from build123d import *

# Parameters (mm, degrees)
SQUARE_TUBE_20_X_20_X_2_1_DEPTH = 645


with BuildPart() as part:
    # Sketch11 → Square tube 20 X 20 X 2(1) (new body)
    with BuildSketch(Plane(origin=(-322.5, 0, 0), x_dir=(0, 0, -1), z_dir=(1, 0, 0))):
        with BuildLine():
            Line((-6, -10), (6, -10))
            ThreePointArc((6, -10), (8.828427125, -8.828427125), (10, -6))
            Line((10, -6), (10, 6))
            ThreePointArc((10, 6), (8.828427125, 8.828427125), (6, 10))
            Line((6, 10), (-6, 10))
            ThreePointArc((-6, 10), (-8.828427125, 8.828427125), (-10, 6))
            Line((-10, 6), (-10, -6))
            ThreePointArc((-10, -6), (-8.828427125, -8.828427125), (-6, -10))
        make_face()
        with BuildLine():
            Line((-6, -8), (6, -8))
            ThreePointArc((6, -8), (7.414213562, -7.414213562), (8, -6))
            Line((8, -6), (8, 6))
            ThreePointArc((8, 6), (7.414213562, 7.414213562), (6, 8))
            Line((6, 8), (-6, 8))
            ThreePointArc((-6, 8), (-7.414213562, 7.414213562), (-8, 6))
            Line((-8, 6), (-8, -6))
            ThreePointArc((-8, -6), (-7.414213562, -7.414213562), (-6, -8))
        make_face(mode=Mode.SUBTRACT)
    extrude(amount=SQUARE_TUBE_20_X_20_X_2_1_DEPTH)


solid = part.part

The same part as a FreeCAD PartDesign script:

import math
import FreeCAD as App
import Part
import Sketcher

doc = App.newDocument("Part")
body = doc.addObject("PartDesign::Body", "Body")

# Sketch on YZ plane
sketch1 = doc.addObject("Sketcher::SketchObject", "Sketch")
body.addObject(sketch1)
sketch1.AttachmentSupport = (doc.YZ_Plane, [""])
sketch1.MapMode = "FlatFace"
sketch1.AttachmentOffset = App.Placement(App.Vector(0, 0, -322.5), App.Rotation())
sketch1.addGeometry(Part.LineSegment(App.Vector(-10, 6, 0), App.Vector(-10, -6, 0)), False)
sketch1.addGeometry(Part.ArcOfCircle(Part.Circle(App.Vector(-6, -6, 0), App.Vector(0, 0, 1), 4), math.radians(180), math.radians(270)), False)
sketch1.addGeometry(Part.LineSegment(App.Vector(-6, -10, 0), App.Vector(6, -10, 0)), False)
sketch1.addGeometry(Part.ArcOfCircle(Part.Circle(App.Vector(6, -6, 0), App.Vector(0, 0, 1), 4), math.radians(-90), math.radians(0)), False)
sketch1.addGeometry(Part.LineSegment(App.Vector(10, -6, 0), App.Vector(10, 6, 0)), False)
sketch1.addGeometry(Part.ArcOfCircle(Part.Circle(App.Vector(6, 6, 0), App.Vector(0, 0, 1), 4), math.radians(0), math.radians(90)), False)
sketch1.addGeometry(Part.LineSegment(App.Vector(6, 10, 0), App.Vector(-6, 10, 0)), False)
sketch1.addGeometry(Part.ArcOfCircle(Part.Circle(App.Vector(-6, 6, 0), App.Vector(0, 0, 1), 4), math.radians(90), math.radians(180)), False)
sketch1.addGeometry(Part.LineSegment(App.Vector(-8, -6, 0), App.Vector(-8, 6, 0)), False)
sketch1.addGeometry(Part.ArcOfCircle(Part.Circle(App.Vector(-6, 6, 0), App.Vector(0, 0, 1), 2), math.radians(90), math.radians(180)), False)
sketch1.addGeometry(Part.LineSegment(App.Vector(-6, 8, 0), App.Vector(6, 8, 0)), False)
sketch1.addGeometry(Part.ArcOfCircle(Part.Circle(App.Vector(6, 6, 0), App.Vector(0, 0, 1), 2), math.radians(0), math.radians(90)), False)
sketch1.addGeometry(Part.LineSegment(App.Vector(8, 6, 0), App.Vector(8, -6, 0)), False)
sketch1.addGeometry(Part.ArcOfCircle(Part.Circle(App.Vector(6, -6, 0), App.Vector(0, 0, 1), 2), math.radians(-90), math.radians(0)), False)
sketch1.addGeometry(Part.LineSegment(App.Vector(6, -8, 0), App.Vector(-6, -8, 0)), False)
sketch1.addGeometry(Part.ArcOfCircle(Part.Circle(App.Vector(-6, -6, 0), App.Vector(0, 0, 1), 2), math.radians(-180), math.radians(-90)), False)
sketch1.addConstraint(Sketcher.Constraint("Tangent", 0, 2, 1, 1))
sketch1.addConstraint(Sketcher.Constraint("Tangent", 1, 2, 2, 1))
sketch1.addConstraint(Sketcher.Constraint("Tangent", 2, 2, 3, 1))
sketch1.addConstraint(Sketcher.Constraint("Tangent", 3, 2, 4, 1))
sketch1.addConstraint(Sketcher.Constraint("Tangent", 4, 2, 5, 1))
sketch1.addConstraint(Sketcher.Constraint("Tangent", 5, 2, 6, 1))
sketch1.addConstraint(Sketcher.Constraint("Tangent", 6, 2, 7, 1))
sketch1.addConstraint(Sketcher.Constraint("Tangent", 7, 2, 0, 1))
sketch1.addConstraint(Sketcher.Constraint("Tangent", 8, 2, 9, 2))
sketch1.addConstraint(Sketcher.Constraint("Tangent", 9, 1, 10, 1))
sketch1.addConstraint(Sketcher.Constraint("Tangent", 10, 2, 11, 2))
sketch1.addConstraint(Sketcher.Constraint("Tangent", 11, 1, 12, 1))
sketch1.addConstraint(Sketcher.Constraint("Tangent", 12, 2, 13, 2))
sketch1.addConstraint(Sketcher.Constraint("Tangent", 13, 1, 14, 1))
sketch1.addConstraint(Sketcher.Constraint("Tangent", 14, 2, 15, 2))
sketch1.addConstraint(Sketcher.Constraint("Tangent", 15, 1, 8, 1))
sketch1.addConstraint(Sketcher.Constraint("Vertical", 0))
sketch1.addConstraint(Sketcher.Constraint("Horizontal", 2))
sketch1.addConstraint(Sketcher.Constraint("Vertical", 4))
sketch1.addConstraint(Sketcher.Constraint("Horizontal", 6))
sketch1.addConstraint(Sketcher.Constraint("Vertical", 8))
sketch1.addConstraint(Sketcher.Constraint("Horizontal", 10))
sketch1.addConstraint(Sketcher.Constraint("Vertical", 12))
sketch1.addConstraint(Sketcher.Constraint("Horizontal", 14))
sketch1.addConstraint(Sketcher.Constraint("Coincident", 9, 3, 7, 3))
sketch1.addConstraint(Sketcher.Constraint("Coincident", 11, 3, 5, 3))
sketch1.addConstraint(Sketcher.Constraint("Coincident", 13, 3, 3, 3))
sketch1.addConstraint(Sketcher.Constraint("Equal", 1, 3))
sketch1.addConstraint(Sketcher.Constraint("Equal", 3, 5))
sketch1.addConstraint(Sketcher.Constraint("Equal", 5, 7))
sketch1.addConstraint(Sketcher.Constraint("Equal", 13, 15))
sketch1.addConstraint(Sketcher.Constraint("Symmetric", 1, 3, 5, 3, -1, 1))
sketch1.addConstraint(Sketcher.Constraint("Equal", 14, 0))
sketch1.addConstraint(Sketcher.Constraint("Radius", 1, 4.0))
sketch1.addConstraint(Sketcher.Constraint("Radius", 9, 2.0))
sketch1.addConstraint(Sketcher.Constraint("DistanceX", 2, 1, 2, 2, 12.0))
pad1 = doc.addObject("PartDesign::Pad", "Pad")
body.addObject(pad1)
pad1.Profile = sketch1
pad1.Length = 645

doc.recompute()
